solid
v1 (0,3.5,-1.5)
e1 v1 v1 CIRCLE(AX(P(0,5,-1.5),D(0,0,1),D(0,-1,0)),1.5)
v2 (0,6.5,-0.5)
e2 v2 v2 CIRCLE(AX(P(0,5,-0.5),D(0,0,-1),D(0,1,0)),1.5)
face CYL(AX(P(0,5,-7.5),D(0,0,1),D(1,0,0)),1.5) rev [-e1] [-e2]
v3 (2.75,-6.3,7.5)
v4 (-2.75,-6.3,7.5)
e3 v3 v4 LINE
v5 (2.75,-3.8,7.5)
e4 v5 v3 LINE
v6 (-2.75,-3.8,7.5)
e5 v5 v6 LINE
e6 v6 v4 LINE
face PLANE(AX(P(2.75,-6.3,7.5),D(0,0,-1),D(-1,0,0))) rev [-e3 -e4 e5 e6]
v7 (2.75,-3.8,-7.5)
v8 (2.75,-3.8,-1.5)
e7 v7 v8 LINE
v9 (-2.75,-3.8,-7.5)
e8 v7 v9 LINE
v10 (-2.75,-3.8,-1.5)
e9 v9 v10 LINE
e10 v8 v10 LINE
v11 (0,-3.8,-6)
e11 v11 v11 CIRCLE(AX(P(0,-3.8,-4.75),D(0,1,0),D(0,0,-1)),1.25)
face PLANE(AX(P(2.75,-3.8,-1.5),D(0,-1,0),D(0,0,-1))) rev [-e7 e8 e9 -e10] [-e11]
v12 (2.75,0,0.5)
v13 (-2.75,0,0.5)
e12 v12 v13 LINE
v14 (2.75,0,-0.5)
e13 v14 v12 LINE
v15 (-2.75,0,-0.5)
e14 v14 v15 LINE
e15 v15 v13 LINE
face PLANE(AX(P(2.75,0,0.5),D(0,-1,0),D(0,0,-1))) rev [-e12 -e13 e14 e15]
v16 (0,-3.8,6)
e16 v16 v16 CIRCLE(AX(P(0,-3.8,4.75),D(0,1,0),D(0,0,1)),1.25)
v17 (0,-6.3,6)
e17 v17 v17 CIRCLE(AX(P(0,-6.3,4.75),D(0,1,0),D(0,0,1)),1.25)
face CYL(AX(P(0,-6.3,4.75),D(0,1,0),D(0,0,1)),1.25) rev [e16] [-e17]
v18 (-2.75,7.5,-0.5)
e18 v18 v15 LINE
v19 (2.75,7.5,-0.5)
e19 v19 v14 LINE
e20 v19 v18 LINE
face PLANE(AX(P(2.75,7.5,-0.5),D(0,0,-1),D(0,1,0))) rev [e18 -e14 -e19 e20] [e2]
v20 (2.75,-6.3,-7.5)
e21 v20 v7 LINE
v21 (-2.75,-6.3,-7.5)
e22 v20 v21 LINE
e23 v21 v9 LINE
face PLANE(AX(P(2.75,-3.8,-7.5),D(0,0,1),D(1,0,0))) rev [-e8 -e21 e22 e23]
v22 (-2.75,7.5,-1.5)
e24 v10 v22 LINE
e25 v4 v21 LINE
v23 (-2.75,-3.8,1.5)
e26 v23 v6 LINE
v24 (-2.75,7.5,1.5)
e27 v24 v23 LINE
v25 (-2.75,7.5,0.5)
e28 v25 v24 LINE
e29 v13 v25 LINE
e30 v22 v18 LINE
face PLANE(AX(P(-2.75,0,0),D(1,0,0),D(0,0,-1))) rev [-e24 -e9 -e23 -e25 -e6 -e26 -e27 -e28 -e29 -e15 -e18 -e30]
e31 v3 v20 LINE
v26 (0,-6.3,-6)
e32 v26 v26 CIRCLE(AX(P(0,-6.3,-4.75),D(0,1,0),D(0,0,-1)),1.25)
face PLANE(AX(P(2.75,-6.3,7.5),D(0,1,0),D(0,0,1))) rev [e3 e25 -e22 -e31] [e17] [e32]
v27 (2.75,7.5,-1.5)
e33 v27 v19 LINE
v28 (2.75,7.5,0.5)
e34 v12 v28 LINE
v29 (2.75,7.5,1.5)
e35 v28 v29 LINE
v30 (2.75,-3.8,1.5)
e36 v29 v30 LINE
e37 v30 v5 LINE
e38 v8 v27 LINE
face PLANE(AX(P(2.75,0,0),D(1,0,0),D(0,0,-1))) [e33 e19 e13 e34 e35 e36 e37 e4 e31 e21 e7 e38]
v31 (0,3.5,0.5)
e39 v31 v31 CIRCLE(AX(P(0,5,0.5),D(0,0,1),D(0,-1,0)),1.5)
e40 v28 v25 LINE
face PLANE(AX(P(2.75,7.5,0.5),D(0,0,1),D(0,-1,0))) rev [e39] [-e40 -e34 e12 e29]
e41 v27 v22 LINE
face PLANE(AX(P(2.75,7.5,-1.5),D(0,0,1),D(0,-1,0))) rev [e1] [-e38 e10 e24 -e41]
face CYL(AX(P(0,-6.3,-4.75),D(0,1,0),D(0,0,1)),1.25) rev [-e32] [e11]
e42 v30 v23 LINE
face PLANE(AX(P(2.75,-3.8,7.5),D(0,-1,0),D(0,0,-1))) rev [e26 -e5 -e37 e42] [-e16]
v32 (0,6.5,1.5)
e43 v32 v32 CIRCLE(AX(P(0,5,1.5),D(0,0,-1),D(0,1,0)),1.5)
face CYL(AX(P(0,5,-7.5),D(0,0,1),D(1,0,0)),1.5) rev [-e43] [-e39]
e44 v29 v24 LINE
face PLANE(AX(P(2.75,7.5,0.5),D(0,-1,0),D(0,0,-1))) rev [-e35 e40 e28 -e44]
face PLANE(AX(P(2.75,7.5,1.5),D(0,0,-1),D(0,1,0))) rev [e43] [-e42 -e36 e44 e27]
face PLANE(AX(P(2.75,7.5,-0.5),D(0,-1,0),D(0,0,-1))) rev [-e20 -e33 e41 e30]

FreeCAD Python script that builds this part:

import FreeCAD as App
import Part
import Sketcher
from FreeCAD import Vector


def add_polygon(sketch, points):
    """Adds a closed chain of lines whose ends are joined by coincident constraints."""
    first, n = sketch.GeometryCount, len(points)
    for a, b in zip(points, points[1:] + points[:1]):
        sketch.addGeometry(Part.LineSegment(App.Vector(*a, 0), App.Vector(*b, 0)), False)
    for i in range(n):
        sketch.addConstraint(Sketcher.Constraint("Coincident", first + i, 2, first + (i + 1) % n, 1))

doc = App.newDocument("Part")
body = doc.addObject("PartDesign::Body", "Body")

# Sketch on YZ plane
sketch1 = body.newObject("Sketcher::SketchObject", "Sketch")
sketch1.AttachmentSupport = (doc.getObject("YZ_Plane"), [""])
sketch1.MapMode = "FlatFace"
add_polygon(sketch1, [(0, 0.5), (7.5, 0.5), (7.5, 1.5), (-3.8, 1.5), (-3.8, 7.5), (-6.3, 7.5), (-6.3, -7.5), (-3.8, -7.5), (-3.8, -1.5), (7.5, -1.5), (7.5, -0.5), (0, -0.5)])  # lines 0-11
sketch1.addConstraint([
    Sketcher.Constraint("Horizontal", 0),
    Sketcher.Constraint("Vertical", 1),
    Sketcher.Constraint("Horizontal", 2),
    Sketcher.Constraint("Vertical", 3),
    Sketcher.Constraint("Horizontal", 4),
    Sketcher.Constraint("Vertical", 5),
    Sketcher.Constraint("Horizontal", 6),
    Sketcher.Constraint("Vertical", 7),
    Sketcher.Constraint("Horizontal", 8),
    Sketcher.Constraint("Vertical", 9),
    Sketcher.Constraint("Horizontal", 10),
    Sketcher.Constraint("Vertical", 11),
    Sketcher.Constraint("Symmetric", 10, 2, 11, 2, -1, 1),
    Sketcher.Constraint("Symmetric", 3, 2, 6, 2, -1),
    Sketcher.Constraint("Symmetric", 1, 2, 8, 2, -1),
    Sketcher.Constraint("Equal", 9, 11),
    Sketcher.Constraint("DistanceY", 1, 1, 1, 2, 1.0),
    Sketcher.Constraint("DistanceY", 3, 1, 3, 2, 6.0),
    Sketcher.Constraint("DistanceX", 0, 1, 0, 2, 7.5),
    Sketcher.Constraint("DistanceX", 2, 2, 2, 1, 11.3),
    Sketcher.Constraint("DistanceX", 4, 2, 4, 1, 2.5),
])
pad1 = body.newObject("PartDesign::Pad", "Pad")
pad1.Profile = sketch1
pad1.Length = 5.5
pad1.Midplane = True

# Sketch on XZ plane
sketch2 = body.newObject("Sketcher::SketchObject", "Sketch001")
sketch2.AttachmentSupport = (doc.getObject("XZ_Plane"), [""])
sketch2.MapMode = "FlatFace"
sketch2.AttachmentOffset = App.Placement(Vector(0, 0, 3.8), App.Rotation())
sketch2.addGeometry([
    Part.Circle(Vector(0, 4.75, 0), Vector(0, 0, 1), 1.25),
    Part.Circle(Vector(0, -4.75, 0), Vector(0, 0, 1), 1.25),
], False)
sketch2.addConstraint([
    Sketcher.Constraint("Equal", 0, 1),
    Sketcher.Constraint("Symmetric", 0, 3, 1, 3, -1, 1),
    Sketcher.Constraint("PointOnObject", 0, 3, -2),
    Sketcher.Constraint("Diameter", 0, 2.5),
    Sketcher.Constraint("DistanceY", 1, 3, 0, 3, 9.5),
])
pocket1 = body.newObject("PartDesign::Pocket", "Pocket")
pocket1.Profile = sketch2
pocket1.Type = "ThroughAll"
pocket1.Reversed = True

# Sketch on XY plane
sketch3 = body.newObject("Sketcher::SketchObject", "Sketch002")
sketch3.AttachmentSupport = (doc.getObject("XY_Plane"), [""])
sketch3.MapMode = "FlatFace"
sketch3.addGeometry(Part.Circle(Vector(0, 5, 0), Vector(0, 0, 1), 1.5), False)
sketch3.addConstraint([
    Sketcher.Constraint("PointOnObject", 0, 3, -2),
    Sketcher.Constraint("Diameter", 0, 3.0),
    Sketcher.Constraint("DistanceY", -1, 1, 0, 3, 5.0),
])
pocket2 = body.newObject("PartDesign::Pocket", "Pocket001")
pocket2.Profile = sketch3
pocket2.Type = "ThroughAll"
pocket2.Midplane = True

doc.recompute()
